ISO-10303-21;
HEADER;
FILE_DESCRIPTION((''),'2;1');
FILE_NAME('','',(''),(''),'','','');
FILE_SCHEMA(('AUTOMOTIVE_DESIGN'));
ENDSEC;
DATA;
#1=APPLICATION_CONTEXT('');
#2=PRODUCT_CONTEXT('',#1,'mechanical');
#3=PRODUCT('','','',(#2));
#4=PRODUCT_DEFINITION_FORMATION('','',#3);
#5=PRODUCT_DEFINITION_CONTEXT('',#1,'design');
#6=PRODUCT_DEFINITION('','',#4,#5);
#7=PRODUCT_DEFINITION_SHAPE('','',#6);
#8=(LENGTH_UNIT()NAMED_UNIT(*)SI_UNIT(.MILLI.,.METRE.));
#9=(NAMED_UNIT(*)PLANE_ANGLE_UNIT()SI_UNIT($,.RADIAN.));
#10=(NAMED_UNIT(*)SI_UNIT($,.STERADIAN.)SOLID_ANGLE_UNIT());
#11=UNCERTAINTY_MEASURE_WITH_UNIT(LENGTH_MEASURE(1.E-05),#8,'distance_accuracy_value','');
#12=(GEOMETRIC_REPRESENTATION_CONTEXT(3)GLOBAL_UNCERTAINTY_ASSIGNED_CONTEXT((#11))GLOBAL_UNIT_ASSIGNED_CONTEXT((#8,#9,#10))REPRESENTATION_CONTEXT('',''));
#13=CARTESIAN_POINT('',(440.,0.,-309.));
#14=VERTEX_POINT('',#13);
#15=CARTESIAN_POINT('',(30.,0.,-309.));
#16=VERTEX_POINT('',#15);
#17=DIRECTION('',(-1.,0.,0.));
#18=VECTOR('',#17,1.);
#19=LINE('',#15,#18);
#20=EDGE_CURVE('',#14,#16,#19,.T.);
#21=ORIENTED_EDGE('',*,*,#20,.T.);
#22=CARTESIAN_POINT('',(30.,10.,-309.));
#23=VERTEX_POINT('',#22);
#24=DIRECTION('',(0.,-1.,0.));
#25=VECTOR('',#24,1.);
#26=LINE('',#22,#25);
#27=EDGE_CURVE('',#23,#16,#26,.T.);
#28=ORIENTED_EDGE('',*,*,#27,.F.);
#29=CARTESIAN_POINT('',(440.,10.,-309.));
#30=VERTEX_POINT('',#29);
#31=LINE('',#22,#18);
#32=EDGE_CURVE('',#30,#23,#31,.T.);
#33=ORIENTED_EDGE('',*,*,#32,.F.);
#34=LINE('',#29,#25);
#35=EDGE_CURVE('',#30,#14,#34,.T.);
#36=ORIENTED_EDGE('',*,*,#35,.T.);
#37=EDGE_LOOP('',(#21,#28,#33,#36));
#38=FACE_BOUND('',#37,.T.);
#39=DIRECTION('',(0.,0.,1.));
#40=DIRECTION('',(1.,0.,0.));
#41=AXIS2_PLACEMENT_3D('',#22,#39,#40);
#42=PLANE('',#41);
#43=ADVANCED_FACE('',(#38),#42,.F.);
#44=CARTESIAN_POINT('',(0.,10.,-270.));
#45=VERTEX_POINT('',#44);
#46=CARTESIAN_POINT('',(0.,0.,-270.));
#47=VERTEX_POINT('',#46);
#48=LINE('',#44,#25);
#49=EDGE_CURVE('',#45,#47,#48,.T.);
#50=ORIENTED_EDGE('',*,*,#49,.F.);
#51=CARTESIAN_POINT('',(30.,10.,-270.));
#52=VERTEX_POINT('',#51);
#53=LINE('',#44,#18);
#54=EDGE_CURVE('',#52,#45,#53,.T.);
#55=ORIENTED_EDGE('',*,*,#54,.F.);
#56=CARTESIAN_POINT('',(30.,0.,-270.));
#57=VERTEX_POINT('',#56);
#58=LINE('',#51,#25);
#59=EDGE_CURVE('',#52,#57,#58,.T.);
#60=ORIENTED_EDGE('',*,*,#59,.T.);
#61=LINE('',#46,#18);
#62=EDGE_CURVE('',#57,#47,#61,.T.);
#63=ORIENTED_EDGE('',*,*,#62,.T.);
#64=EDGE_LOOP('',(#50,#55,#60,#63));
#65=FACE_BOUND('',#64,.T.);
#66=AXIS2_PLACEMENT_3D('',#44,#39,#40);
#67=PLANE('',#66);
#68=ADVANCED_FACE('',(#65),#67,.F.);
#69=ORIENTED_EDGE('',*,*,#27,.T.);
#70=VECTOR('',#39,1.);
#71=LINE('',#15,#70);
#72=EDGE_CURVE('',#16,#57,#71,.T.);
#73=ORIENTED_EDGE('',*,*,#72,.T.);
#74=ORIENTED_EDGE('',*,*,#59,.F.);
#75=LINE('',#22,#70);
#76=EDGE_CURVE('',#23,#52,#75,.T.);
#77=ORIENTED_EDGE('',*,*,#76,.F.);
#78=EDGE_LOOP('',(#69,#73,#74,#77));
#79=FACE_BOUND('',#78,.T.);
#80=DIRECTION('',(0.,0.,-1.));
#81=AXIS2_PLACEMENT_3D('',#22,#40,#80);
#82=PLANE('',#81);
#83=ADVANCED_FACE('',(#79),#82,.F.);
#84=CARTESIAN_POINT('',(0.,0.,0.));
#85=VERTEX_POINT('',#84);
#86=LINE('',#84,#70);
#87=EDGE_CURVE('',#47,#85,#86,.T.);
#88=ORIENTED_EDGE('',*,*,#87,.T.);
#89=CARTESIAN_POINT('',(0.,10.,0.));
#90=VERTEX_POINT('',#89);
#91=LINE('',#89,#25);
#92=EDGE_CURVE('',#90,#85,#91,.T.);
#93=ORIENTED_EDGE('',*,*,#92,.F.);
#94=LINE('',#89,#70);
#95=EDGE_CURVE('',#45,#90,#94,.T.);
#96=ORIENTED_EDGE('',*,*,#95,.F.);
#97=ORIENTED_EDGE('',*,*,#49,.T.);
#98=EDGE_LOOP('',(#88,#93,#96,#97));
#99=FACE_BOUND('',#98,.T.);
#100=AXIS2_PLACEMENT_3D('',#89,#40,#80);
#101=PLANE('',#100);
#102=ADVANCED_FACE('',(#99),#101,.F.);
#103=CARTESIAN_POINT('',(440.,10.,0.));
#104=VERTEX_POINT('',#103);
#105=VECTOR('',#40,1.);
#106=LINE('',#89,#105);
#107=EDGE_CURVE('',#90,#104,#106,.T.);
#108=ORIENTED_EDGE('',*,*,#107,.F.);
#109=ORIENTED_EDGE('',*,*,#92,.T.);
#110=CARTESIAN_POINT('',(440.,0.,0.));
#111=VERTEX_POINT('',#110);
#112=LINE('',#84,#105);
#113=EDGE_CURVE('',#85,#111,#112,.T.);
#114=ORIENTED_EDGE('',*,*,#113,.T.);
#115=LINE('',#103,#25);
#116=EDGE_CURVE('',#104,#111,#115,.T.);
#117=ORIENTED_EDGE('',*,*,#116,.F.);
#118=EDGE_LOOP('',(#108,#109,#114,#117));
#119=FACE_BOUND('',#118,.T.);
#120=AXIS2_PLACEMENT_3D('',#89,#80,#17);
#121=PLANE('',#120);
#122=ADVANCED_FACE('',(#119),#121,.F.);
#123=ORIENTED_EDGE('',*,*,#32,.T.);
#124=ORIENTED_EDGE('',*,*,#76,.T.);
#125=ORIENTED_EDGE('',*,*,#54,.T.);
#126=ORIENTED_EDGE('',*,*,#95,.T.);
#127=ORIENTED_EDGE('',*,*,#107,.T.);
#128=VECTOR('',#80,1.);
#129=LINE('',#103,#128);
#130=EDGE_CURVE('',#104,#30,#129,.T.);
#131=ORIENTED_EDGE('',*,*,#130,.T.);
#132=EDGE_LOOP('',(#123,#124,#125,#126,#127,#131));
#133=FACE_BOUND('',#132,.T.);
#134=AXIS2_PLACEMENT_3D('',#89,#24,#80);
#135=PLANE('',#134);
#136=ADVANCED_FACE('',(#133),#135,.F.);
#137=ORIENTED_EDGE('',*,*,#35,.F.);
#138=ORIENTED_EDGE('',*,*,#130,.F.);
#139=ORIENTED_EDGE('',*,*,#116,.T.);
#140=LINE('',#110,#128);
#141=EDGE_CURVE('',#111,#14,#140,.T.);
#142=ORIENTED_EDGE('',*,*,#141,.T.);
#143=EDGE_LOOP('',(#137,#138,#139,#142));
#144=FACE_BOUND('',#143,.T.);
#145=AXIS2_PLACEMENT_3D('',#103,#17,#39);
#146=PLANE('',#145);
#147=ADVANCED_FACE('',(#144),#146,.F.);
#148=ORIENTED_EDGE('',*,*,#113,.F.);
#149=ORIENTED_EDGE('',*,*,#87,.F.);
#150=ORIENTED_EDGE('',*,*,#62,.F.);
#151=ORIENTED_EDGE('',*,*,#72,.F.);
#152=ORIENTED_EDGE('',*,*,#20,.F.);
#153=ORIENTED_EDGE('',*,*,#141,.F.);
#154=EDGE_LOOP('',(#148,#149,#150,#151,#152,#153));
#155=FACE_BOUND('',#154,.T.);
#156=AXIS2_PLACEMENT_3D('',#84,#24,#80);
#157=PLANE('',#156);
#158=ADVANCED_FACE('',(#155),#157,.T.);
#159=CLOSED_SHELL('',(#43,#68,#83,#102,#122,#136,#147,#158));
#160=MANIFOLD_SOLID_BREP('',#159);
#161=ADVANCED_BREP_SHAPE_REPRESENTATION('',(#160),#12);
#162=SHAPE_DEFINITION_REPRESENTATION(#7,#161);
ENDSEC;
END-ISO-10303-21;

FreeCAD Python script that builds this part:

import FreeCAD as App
import Part
import Sketcher

doc = App.newDocument("Part")
body = doc.addObject("PartDesign::Body", "Body")

# Sketch on XZ plane
sketch1 = body.newObject("Sketcher::SketchObject", "Sketch")
sketch1.AttachmentSupport = (doc.getObject("XZ_Plane"), [""])
sketch1.MapMode = "FlatFace"
sketch1.addGeometry(Part.LineSegment(App.Vector(0, 0, 0), App.Vector(440, 0, 0)), False)
sketch1.addGeometry(Part.LineSegment(App.Vector(440, 0, 0), App.Vector(440, -309, 0)), False)
sketch1.addGeometry(Part.LineSegment(App.Vector(440, -309, 0), App.Vector(30, -309, 0)), False)
sketch1.addGeometry(Part.LineSegment(App.Vector(30, -309, 0), App.Vector(30, -270, 0)), False)
sketch1.addGeometry(Part.LineSegment(App.Vector(30, -270, 0), App.Vector(0, -270, 0)), False)
sketch1.addGeometry(Part.LineSegment(App.Vector(0, -270, 0), App.Vector(0, 0, 0)), False)
sketch1.addConstraint(Sketcher.Constraint("Coincident", 0, 2, 1, 1))
sketch1.addConstraint(Sketcher.Constraint("Coincident", 1, 2, 2, 1))
sketch1.addConstraint(Sketcher.Constraint("Coincident", 2, 2, 3, 1))
sketch1.addConstraint(Sketcher.Constraint("Coincident", 3, 2, 4, 1))
sketch1.addConstraint(Sketcher.Constraint("Coincident", 4, 2, 5, 1))
sketch1.addConstraint(Sketcher.Constraint("Coincident", 5, 2, 0, 1))
sketch1.addConstraint(Sketcher.Constraint("Horizontal", 0))
sketch1.addConstraint(Sketcher.Constraint("Vertical", 1))
sketch1.addConstraint(Sketcher.Constraint("Horizontal", 2))
sketch1.addConstraint(Sketcher.Constraint("Vertical", 3))
sketch1.addConstraint(Sketcher.Constraint("Horizontal", 4))
sketch1.addConstraint(Sketcher.Constraint("Vertical", 5))
sketch1.addConstraint(Sketcher.Constraint("Coincident", 5, 2, -1, 1))
sketch1.addConstraint(Sketcher.Constraint("DistanceX", 0, 1, 0, 2, 440.0))
sketch1.addConstraint(Sketcher.Constraint("DistanceX", 2, 2, 2, 1, 410.0))
sketch1.addConstraint(Sketcher.Constraint("DistanceY", 1, 2, 1, 1, 309.0))
sketch1.addConstraint(Sketcher.Constraint("DistanceY", 3, 1, 3, 2, 39.0))
pad1 = body.newObject("PartDesign::Pad", "Pad")
pad1.Profile = sketch1
pad1.Length = 10
pad1.Reversed = True

doc.recompute()
